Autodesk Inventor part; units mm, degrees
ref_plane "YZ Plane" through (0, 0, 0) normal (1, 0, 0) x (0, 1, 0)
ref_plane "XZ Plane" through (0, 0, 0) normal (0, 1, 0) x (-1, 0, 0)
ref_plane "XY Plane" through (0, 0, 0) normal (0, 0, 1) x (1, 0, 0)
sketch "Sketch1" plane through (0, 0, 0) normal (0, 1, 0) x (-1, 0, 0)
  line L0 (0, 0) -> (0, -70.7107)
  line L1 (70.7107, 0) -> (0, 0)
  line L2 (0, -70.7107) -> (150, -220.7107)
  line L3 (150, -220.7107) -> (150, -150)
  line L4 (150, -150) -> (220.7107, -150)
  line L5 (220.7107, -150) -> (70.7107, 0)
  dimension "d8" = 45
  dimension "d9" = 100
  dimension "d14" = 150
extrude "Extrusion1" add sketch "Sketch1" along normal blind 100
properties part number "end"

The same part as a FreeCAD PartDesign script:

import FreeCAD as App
import Part
import Sketcher
from FreeCAD import Vector
Q = App.Units.Quantity

doc = App.newDocument("Part")
params = doc.addObject("Spreadsheet::Sheet", "Params")
for row, (alias, value) in enumerate([
    ("pad1_length", "3.9370079 in"),
], start=1):
    params.set(f"A{row}", alias)
    params.set(f"B{row}", "=" + value)
    params.setAlias(f"B{row}", alias)

body = doc.addObject("PartDesign::Body", "Body")

sketch1 = body.newObject("Sketcher::SketchObject", "Sketch")
sketch1.AttachmentSupport = (doc.getObject("XZ_Plane"), [""])
sketch1.MapMode = "FlatFace"
sketch1.addGeometry(Part.LineSegment(Vector(-71, 0, 0), Vector(0, 0, 0)), False)
sketch1.addGeometry(Part.LineSegment(Vector(0, 0, 0), Vector(0, -71, 0)), False)
sketch1.addGeometry(Part.LineSegment(Vector(0, -71, 0), Vector(-150, -221, 0)), False)
sketch1.addGeometry(Part.LineSegment(Vector(-150, -221, 0), Vector(-150, -150, 0)), False)
sketch1.addGeometry(Part.LineSegment(Vector(-150, -150, 0), Vector(-221, -150, 0)), False)
sketch1.addGeometry(Part.LineSegment(Vector(-221, -150, 0), Vector(-71, 0, 0)), False)
sketch1.addConstraint(Sketcher.Constraint("Coincident", 0, 2, 1, 1))
sketch1.addConstraint(Sketcher.Constraint("Coincident", 1, 2, 2, 1))
sketch1.addConstraint(Sketcher.Constraint("Coincident", 2, 2, 3, 1))
sketch1.addConstraint(Sketcher.Constraint("Coincident", 3, 2, 4, 1))
sketch1.addConstraint(Sketcher.Constraint("Coincident", 4, 2, 5, 1))
sketch1.addConstraint(Sketcher.Constraint("Coincident", 5, 2, 0, 1))
sketch1.addConstraint(Sketcher.Constraint("Horizontal", 0))
sketch1.addConstraint(Sketcher.Constraint("Vertical", 1))
sketch1.addConstraint(Sketcher.Constraint("Vertical", 3))
sketch1.addConstraint(Sketcher.Constraint("Horizontal", 4))
sketch1.addConstraint(Sketcher.Constraint("Coincident", 0, 2, -1, 1))
sketch1.addConstraint(Sketcher.Constraint("Parallel", 2, 5))
sketch1.addConstraint(Sketcher.Constraint("Equal", 0, 4))
sketch1.addConstraint(Sketcher.Constraint("Equal", 4, 1))
sketch1.addConstraint(Sketcher.Constraint("Angle", 5, Q("45 deg")))
sketch1.addConstraint(Sketcher.Constraint("DistanceX", 2, 2, -1, 1, Q("5.9055 in")))
sketch1.addConstraint(Sketcher.Constraint("DistanceX", 0, 1, 0, 2, 70.7107))
pad1 = body.newObject("PartDesign::Pad", "Pad")
pad1.Profile = sketch1
pad1.setExpression("Length", "Params.pad1_length")
pad1.Reversed = True

doc.recompute()
